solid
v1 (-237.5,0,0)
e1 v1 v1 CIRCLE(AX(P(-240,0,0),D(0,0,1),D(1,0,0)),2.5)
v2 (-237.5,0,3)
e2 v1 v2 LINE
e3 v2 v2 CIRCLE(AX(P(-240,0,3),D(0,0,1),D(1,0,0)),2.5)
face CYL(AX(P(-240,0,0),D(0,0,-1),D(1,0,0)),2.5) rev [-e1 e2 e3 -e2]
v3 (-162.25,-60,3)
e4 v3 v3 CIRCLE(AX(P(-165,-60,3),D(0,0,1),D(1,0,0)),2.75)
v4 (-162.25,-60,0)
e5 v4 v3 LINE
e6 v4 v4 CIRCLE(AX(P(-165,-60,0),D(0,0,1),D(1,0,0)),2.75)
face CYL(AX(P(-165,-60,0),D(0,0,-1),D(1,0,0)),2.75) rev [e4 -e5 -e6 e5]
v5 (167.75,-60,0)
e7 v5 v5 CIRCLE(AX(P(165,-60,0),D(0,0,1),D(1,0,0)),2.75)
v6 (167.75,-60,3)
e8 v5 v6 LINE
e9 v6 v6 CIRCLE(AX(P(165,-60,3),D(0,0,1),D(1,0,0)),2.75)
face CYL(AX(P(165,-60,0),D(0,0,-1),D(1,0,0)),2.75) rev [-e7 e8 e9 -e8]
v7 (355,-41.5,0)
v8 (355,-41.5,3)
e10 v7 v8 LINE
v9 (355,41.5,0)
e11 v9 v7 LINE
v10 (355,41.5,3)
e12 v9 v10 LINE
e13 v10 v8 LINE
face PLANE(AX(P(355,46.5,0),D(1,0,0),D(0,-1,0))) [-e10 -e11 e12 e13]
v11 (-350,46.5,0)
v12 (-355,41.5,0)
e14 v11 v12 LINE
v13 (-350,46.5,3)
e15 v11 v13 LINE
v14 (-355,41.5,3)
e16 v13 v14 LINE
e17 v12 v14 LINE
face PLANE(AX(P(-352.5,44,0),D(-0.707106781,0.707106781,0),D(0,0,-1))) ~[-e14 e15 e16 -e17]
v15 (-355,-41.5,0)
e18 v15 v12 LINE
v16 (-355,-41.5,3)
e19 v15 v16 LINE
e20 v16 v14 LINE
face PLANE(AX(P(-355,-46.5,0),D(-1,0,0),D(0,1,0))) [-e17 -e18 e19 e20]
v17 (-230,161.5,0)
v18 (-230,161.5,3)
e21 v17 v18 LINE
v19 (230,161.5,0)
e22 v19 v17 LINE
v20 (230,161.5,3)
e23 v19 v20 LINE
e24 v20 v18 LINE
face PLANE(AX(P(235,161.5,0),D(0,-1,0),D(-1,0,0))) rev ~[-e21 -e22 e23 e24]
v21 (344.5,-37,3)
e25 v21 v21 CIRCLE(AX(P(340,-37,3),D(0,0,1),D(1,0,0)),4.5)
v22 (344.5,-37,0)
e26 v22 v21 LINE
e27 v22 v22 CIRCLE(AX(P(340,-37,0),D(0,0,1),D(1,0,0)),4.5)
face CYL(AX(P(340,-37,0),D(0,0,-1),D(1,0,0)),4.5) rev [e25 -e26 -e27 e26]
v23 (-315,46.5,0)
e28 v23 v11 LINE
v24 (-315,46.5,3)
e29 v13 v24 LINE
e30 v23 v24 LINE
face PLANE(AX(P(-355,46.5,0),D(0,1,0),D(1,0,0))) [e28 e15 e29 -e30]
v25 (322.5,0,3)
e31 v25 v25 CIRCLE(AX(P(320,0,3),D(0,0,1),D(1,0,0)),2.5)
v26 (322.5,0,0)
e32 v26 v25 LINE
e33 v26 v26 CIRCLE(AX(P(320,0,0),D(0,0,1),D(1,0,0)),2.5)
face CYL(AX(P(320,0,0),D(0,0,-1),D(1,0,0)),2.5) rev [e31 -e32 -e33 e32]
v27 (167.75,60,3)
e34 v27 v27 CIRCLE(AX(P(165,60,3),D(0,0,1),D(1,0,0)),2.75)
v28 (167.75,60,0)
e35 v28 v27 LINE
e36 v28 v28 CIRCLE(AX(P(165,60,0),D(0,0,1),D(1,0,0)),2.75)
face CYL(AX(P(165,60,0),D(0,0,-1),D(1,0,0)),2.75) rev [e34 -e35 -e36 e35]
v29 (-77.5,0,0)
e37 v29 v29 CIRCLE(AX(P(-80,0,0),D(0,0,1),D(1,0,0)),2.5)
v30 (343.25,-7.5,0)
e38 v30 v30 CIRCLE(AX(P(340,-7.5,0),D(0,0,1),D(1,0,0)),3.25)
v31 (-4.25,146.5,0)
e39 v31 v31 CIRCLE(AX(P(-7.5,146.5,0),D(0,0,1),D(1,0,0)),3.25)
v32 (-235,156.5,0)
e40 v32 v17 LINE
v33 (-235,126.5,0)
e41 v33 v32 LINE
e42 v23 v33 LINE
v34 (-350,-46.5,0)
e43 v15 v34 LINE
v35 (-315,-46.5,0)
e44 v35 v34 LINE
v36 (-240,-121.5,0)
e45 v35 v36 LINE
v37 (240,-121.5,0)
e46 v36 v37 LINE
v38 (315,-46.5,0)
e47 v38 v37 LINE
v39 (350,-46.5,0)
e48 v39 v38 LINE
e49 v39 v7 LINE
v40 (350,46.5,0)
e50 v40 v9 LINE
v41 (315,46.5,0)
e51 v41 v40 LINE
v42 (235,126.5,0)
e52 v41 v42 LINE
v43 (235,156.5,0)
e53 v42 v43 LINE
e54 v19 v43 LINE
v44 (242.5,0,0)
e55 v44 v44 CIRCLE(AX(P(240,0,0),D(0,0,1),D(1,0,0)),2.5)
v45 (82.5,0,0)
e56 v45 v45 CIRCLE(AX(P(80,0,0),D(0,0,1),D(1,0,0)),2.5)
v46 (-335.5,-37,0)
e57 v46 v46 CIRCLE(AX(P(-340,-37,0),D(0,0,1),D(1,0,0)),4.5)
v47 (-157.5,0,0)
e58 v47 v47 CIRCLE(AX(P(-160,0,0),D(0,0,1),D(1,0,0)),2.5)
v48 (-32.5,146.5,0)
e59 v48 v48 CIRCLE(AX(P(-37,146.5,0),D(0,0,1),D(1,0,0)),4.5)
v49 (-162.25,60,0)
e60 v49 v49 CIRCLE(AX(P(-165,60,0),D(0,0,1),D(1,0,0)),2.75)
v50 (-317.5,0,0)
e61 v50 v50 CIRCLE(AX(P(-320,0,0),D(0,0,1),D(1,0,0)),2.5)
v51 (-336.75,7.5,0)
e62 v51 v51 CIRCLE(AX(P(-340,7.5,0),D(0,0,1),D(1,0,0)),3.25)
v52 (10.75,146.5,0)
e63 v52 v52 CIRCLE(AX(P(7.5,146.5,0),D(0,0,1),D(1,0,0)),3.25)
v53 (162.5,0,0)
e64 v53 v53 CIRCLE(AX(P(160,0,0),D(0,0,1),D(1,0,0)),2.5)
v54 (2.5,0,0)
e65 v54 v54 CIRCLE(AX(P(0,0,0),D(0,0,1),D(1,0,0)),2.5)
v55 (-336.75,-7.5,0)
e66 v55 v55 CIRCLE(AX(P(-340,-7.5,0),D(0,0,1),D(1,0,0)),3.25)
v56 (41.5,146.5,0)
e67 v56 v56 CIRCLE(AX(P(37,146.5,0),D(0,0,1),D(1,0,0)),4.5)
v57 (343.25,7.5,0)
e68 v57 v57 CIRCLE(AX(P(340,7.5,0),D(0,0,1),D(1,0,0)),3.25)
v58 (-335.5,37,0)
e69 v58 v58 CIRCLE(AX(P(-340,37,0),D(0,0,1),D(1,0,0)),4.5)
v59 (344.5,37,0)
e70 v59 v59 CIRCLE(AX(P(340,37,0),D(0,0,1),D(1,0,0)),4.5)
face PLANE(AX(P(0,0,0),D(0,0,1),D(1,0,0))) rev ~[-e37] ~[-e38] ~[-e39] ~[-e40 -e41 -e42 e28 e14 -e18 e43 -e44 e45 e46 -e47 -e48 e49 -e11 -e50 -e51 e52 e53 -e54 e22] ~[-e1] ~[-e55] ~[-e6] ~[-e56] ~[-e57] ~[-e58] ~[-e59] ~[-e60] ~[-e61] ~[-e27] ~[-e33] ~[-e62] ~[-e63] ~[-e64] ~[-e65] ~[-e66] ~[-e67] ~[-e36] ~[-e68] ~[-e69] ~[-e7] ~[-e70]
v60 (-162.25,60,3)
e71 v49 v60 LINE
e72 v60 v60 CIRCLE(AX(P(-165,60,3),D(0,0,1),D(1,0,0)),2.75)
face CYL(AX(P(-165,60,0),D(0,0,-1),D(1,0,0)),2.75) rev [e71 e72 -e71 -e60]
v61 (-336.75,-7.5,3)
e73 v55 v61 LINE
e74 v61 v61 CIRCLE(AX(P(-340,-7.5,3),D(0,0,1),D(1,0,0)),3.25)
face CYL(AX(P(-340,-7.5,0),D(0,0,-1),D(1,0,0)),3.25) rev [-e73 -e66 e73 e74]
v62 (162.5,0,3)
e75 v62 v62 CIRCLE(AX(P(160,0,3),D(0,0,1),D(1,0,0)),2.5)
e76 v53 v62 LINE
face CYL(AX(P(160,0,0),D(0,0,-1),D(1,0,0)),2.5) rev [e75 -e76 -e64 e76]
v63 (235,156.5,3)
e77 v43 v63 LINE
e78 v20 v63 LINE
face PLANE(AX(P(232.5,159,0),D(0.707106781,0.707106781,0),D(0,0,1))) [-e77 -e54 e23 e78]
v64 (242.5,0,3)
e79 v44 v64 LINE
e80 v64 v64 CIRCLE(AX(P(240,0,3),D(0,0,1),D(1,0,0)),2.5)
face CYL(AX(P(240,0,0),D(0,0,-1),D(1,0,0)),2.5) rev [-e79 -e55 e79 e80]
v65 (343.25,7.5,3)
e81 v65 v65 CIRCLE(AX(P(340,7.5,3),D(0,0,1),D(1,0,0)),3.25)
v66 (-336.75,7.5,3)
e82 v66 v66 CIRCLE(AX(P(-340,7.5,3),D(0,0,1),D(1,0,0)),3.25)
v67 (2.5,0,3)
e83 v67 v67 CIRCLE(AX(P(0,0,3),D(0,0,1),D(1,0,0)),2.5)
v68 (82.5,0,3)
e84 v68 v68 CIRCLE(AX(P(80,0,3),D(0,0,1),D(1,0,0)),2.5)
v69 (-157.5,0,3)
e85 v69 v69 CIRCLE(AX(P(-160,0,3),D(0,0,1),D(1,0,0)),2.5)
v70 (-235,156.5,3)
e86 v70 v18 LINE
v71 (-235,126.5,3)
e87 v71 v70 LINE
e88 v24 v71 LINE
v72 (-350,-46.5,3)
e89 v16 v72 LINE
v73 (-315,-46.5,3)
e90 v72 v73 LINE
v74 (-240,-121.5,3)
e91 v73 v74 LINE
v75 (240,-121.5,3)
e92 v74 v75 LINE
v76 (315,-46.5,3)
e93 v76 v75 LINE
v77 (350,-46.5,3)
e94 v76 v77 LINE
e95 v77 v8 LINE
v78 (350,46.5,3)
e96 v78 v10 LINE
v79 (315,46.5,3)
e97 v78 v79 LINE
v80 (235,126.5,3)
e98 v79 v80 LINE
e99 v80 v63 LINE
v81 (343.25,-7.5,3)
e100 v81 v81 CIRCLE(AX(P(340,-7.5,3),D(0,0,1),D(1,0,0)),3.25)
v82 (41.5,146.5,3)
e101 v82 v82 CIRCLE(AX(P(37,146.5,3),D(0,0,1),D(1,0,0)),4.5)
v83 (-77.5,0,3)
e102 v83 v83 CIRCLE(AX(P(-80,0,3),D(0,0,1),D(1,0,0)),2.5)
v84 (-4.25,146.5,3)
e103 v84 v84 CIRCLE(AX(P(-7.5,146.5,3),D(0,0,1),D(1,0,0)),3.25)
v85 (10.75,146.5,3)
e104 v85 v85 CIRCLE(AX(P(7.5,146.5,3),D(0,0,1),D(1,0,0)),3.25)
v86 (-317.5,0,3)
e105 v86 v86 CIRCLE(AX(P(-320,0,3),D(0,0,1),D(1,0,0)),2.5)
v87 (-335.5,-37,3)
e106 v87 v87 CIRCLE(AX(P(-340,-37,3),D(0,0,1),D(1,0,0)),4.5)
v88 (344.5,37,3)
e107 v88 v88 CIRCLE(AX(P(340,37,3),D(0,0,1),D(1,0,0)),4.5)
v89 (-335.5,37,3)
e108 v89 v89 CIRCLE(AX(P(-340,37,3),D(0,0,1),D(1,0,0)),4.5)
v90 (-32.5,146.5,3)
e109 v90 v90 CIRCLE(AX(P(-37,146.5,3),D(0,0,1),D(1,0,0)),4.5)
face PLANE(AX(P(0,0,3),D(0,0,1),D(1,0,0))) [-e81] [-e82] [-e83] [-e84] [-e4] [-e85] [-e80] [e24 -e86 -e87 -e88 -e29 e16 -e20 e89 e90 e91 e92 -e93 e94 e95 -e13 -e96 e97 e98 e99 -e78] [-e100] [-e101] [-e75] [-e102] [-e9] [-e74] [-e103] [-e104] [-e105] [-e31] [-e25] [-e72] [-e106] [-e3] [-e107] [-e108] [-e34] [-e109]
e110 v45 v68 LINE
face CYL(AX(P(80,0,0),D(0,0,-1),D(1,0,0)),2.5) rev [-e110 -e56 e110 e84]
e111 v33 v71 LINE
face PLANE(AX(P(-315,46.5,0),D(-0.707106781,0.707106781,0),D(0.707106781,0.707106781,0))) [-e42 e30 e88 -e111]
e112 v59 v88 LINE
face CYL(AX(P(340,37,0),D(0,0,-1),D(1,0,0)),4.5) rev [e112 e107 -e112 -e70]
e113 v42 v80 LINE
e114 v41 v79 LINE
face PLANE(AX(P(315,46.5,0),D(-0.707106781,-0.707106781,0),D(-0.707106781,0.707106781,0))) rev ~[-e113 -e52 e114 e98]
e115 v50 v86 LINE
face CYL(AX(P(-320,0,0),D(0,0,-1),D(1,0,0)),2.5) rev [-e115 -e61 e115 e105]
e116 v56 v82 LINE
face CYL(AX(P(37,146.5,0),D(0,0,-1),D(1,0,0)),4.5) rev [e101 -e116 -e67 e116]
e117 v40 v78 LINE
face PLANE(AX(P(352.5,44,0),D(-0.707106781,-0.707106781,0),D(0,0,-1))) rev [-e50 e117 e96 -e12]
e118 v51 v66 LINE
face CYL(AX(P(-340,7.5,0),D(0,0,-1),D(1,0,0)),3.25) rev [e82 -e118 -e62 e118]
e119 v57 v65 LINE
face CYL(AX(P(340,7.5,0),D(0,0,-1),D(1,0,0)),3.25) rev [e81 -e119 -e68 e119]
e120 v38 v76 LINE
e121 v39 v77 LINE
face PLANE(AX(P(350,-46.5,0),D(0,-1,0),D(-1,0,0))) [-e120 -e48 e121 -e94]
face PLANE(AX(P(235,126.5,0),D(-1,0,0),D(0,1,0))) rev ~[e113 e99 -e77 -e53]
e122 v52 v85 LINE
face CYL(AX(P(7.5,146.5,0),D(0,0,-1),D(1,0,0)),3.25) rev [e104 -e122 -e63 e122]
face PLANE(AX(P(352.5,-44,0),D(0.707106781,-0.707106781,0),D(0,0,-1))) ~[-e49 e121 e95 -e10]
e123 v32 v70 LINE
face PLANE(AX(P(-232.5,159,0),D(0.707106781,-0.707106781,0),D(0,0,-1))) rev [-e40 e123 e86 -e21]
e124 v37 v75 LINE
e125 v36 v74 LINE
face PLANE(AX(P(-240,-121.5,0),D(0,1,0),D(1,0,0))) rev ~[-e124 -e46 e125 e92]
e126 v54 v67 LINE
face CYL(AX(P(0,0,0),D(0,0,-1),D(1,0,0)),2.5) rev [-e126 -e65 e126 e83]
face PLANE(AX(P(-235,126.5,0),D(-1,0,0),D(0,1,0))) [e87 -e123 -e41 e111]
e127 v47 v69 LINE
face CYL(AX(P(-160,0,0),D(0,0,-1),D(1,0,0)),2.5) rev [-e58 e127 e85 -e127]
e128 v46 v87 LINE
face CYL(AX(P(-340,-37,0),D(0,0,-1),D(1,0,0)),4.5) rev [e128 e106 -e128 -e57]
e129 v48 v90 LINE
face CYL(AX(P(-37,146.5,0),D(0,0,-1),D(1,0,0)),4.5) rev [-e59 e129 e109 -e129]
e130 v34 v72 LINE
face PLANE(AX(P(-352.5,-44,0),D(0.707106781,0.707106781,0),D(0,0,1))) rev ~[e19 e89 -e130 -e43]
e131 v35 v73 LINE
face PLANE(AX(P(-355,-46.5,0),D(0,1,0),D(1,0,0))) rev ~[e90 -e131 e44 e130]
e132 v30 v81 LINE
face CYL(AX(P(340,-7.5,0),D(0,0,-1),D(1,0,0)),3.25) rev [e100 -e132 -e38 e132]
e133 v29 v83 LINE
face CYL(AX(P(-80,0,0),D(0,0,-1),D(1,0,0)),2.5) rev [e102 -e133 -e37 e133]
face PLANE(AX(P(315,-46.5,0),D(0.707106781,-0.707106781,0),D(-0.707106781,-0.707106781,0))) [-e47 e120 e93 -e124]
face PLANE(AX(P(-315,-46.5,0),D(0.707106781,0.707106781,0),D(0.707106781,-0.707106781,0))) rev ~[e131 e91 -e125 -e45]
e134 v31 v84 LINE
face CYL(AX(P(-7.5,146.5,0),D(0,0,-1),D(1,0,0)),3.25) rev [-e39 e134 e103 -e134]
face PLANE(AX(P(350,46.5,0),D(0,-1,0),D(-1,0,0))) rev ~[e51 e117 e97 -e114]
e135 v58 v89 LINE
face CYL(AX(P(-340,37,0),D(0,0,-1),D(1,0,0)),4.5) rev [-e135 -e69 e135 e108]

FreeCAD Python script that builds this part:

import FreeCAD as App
import Part
import Sketcher
from FreeCAD import Vector
Q = App.Units.Quantity


def edges_at(feature, points):
    """Names of the edges that pass closest to the given points."""
    edges = feature.Shape.Edges
    near = lambda p: min(range(len(edges)), key=lambda i: edges[i].distToShape(Part.Vertex(*p))[0])
    return sorted({f"Edge{near(p) + 1}" for p in points})


def add_polygon(sketch, points):
    """Adds a closed chain of lines whose ends are joined by coincident constraints."""
    first, n = sketch.GeometryCount, len(points)
    for a, b in zip(points, points[1:] + points[:1]):
        sketch.addGeometry(Part.LineSegment(App.Vector(*a, 0), App.Vector(*b, 0)), False)
    for i in range(n):
        sketch.addConstraint(Sketcher.Constraint("Coincident", first + i, 2, first + (i + 1) % n, 1))

doc = App.newDocument("Part")
body = doc.addObject("PartDesign::Body", "Body")

sketch1 = body.newObject("Sketcher::SketchObject", "Sketch")
sketch1.AttachmentSupport = (doc.getObject("XY_Plane"), [""])
sketch1.MapMode = "FlatFace"
add_polygon(sketch1, [(-355, 46.5), (-355, -46.5), (-315, -46.5), (-240, -121.5), (240, -121.5), (315, -46.5), (355, -46.5), (355, 46.5), (315, 46.5), (235, 126.5), (235, 161.5), (-235, 161.5), (-235, 126.5), (-315, 46.5)])
sketch1.addGeometry(Part.Circle(Vector(-340, 37, 0), Vector(0, 0, 1), 4.5), False)
sketch1.addGeometry(Part.Circle(Vector(-340, -37, 0), Vector(0, 0, 1), 4.5), False)
sketch1.addGeometry(Part.Circle(Vector(-340, -7.5, 0), Vector(0, 0, 1), 3.25), False)
sketch1.addGeometry(Part.Circle(Vector(-340, 7.5, 0), Vector(0, 0, 1), 3.25), False)
sketch1.addGeometry(Part.Circle(Vector(-320, 0, 0), Vector(0, 0, 1), 2.5), False)
sketch1.addGeometry(Part.Circle(Vector(240, 0, 0), Vector(0, 0, 1), 2.5), False)
sketch1.addGeometry(Part.Circle(Vector(-165, -60, 0), Vector(0, 0, 1), 2.75), False)
sketch1.addGeometry(Part.Circle(Vector(165, -60, 0), Vector(0, 0, 1), 2.75), False)
sketch1.addGeometry(Part.Circle(Vector(-240, 0, 0), Vector(0, 0, 1), 2.5), False)
sketch1.addGeometry(Part.Circle(Vector(-160, 0, 0), Vector(0, 0, 1), 2.5), False)
sketch1.addGeometry(Part.Circle(Vector(-80, 0, 0), Vector(0, 0, 1), 2.5), False)
sketch1.addGeometry(Part.Circle(Vector(-165, 60, 0), Vector(0, 0, 1), 2.75), False)
sketch1.addGeometry(Part.Circle(Vector(0, 0, 0), Vector(0, 0, 1), 2.5), False)
sketch1.addGeometry(Part.Circle(Vector(80, 0, 0), Vector(0, 0, 1), 2.5), False)
sketch1.addGeometry(Part.Circle(Vector(160, 0, 0), Vector(0, 0, 1), 2.5), False)
sketch1.addGeometry(Part.Circle(Vector(165, 60, 0), Vector(0, 0, 1), 2.75), False)
sketch1.addGeometry(Part.Circle(Vector(37, 146.5, 0), Vector(0, 0, 1), 4.5), False)
sketch1.addGeometry(Part.Circle(Vector(-37, 146.5, 0), Vector(0, 0, 1), 4.5), False)
sketch1.addGeometry(Part.Circle(Vector(-7.5, 146.5, 0), Vector(0, 0, 1), 3.25), False)
sketch1.addGeometry(Part.Circle(Vector(7.5, 146.5, 0), Vector(0, 0, 1), 3.25), False)
sketch1.addGeometry(Part.Circle(Vector(340, 37, 0), Vector(0, 0, 1), 4.5), False)
sketch1.addGeometry(Part.Circle(Vector(340, -37, 0), Vector(0, 0, 1), 4.5), False)
sketch1.addGeometry(Part.Circle(Vector(340, -7.5, 0), Vector(0, 0, 1), 3.25), False)
sketch1.addGeometry(Part.Circle(Vector(320, 0, 0), Vector(0, 0, 1), 2.5), False)
sketch1.addGeometry(Part.Circle(Vector(340, 7.5, 0), Vector(0, 0, 1), 3.25), False)
sketch1.addConstraint(Sketcher.Constraint("Vertical", 0))
sketch1.addConstraint(Sketcher.Constraint("Horizontal", 1))
sketch1.addConstraint(Sketcher.Constraint("Horizontal", 3))
sketch1.addConstraint(Sketcher.Constraint("Horizontal", 5))
sketch1.addConstraint(Sketcher.Constraint("Vertical", 6))
sketch1.addConstraint(Sketcher.Constraint("Horizontal", 7))
sketch1.addConstraint(Sketcher.Constraint("Vertical", 9))
sketch1.addConstraint(Sketcher.Constraint("Horizontal", 10))
sketch1.addConstraint(Sketcher.Constraint("Vertical", 11))
sketch1.addConstraint(Sketcher.Constraint("Horizontal", 13))
sketch1.addConstraint(Sketcher.Constraint("Coincident", 26, 3, -1, 1))
sketch1.addConstraint(Sketcher.Constraint("Equal", 14, 15))
sketch1.addConstraint(Sketcher.Constraint("Equal", 16, 17))
sketch1.addConstraint(Sketcher.Constraint("Equal", 18, 19))
sketch1.addConstraint(Sketcher.Constraint("Equal", 20, 21))
sketch1.addConstraint(Sketcher.Constraint("Equal", 19, 22))
sketch1.addConstraint(Sketcher.Constraint("Equal", 22, 23))
sketch1.addConstraint(Sketcher.Constraint("Equal", 23, 24))
sketch1.addConstraint(Sketcher.Constraint("Equal", 21, 25))
sketch1.addConstraint(Sketcher.Constraint("Equal", 24, 26))
sketch1.addConstraint(Sketcher.Constraint("Equal", 26, 27))
sketch1.addConstraint(Sketcher.Constraint("Equal", 27, 28))
sketch1.addConstraint(Sketcher.Constraint("Equal", 25, 29))
sketch1.addConstraint(Sketcher.Constraint("Equal", 15, 30))
sketch1.addConstraint(Sketcher.Constraint("Equal", 30, 31))
sketch1.addConstraint(Sketcher.Constraint("Equal", 17, 32))
sketch1.addConstraint(Sketcher.Constraint("Equal", 32, 33))
sketch1.addConstraint(Sketcher.Constraint("Equal", 31, 34))
sketch1.addConstraint(Sketcher.Constraint("Equal", 34, 35))
sketch1.addConstraint(Sketcher.Constraint("Equal", 33, 36))
sketch1.addConstraint(Sketcher.Constraint("Equal", 28, 37))
sketch1.addConstraint(Sketcher.Constraint("Equal", 36, 38))
sketch1.addConstraint(Sketcher.Constraint("Symmetric", 19, 3, 22, 3, -1, 1))
sketch1.addConstraint(Sketcher.Constraint("Symmetric", 21, 3, 25, 3, -1, 1))
sketch1.addConstraint(Sketcher.Constraint("Symmetric", 24, 3, 27, 3, -1, 1))
sketch1.addConstraint(Sketcher.Constraint("Symmetric", 23, 3, 28, 3, -1, 1))
sketch1.addConstraint(Sketcher.Constraint("Symmetric", 20, 3, 29, 3, -1, 1))
sketch1.addConstraint(Sketcher.Constraint("Symmetric", 15, 3, 34, 3, -1, 1))
sketch1.addConstraint(Sketcher.Constraint("Symmetric", 14, 3, 35, 3, -1, 1))
sketch1.addConstraint(Sketcher.Constraint("Symmetric", 17, 3, 36, 3, -1, 1))
sketch1.addConstraint(Sketcher.Constraint("Symmetric", 18, 3, 37, 3, -1, 1))
sketch1.addConstraint(Sketcher.Constraint("Symmetric", 16, 3, 38, 3, -1, 1))
sketch1.addConstraint(Sketcher.Constraint("Symmetric", 0, 2, 6, 2, -1, 1))
sketch1.addConstraint(Sketcher.Constraint("Symmetric", 4, 2, 12, 2, -1, 1))
sketch1.addConstraint(Sketcher.Constraint("Symmetric", 20, 3, 21, 3, -2))
sketch1.addConstraint(Sketcher.Constraint("Symmetric", 30, 3, 31, 3, -2))
sketch1.addConstraint(Sketcher.Constraint("Symmetric", 32, 3, 33, 3, -2))
sketch1.addConstraint(Sketcher.Constraint("Symmetric", 14, 3, 34, 3, -2))
sketch1.addConstraint(Sketcher.Constraint("Symmetric", 16, 3, 36, 3, -2))
sketch1.addConstraint(Sketcher.Constraint("Symmetric", 1, 2, 4, 2, -2))
sketch1.addConstraint(Sketcher.Constraint("Symmetric", 8, 2, 11, 2, -2))
sketch1.addConstraint(Sketcher.Constraint("PointOnObject", 18, 3, -1))
sketch1.addConstraint(Sketcher.Constraint("PointOnObject", 19, 3, -1))
sketch1.addConstraint(Sketcher.Constraint("PointOnObject", 23, 3, -1))
sketch1.addConstraint(Sketcher.Constraint("PointOnObject", 24, 3, -1))
sketch1.addConstraint(Sketcher.Constraint("Perpendicular", 2, 4))
sketch1.addConstraint(Sketcher.Constraint("Perpendicular", 4, 8))
sketch1.addConstraint(Sketcher.Constraint("Perpendicular", 8, 12))
sketch1.addConstraint(Sketcher.Constraint("Horizontal", 31, 3, 32, 3))
sketch1.addConstraint(Sketcher.Constraint("Vertical", 15, 3, 16, 3))
sketch1.addConstraint(Sketcher.Constraint("Vertical", 22, 3, 2, 2))
sketch1.addConstraint(Sketcher.Constraint("Vertical", 19, 3, 3, 2))
sketch1.addConstraint(Sketcher.Constraint("Diameter", 14, Q("9 mm")))
sketch1.addConstraint(Sketcher.Constraint("Diameter", 18, Q("5 mm")))
sketch1.addConstraint(Sketcher.Constraint("Diameter", 16, Q("6.5 mm")))
sketch1.addConstraint(Sketcher.Constraint("Diameter", 20, Q("5.5 mm")))
sketch1.addConstraint(Sketcher.Constraint("DistanceX", 1, 1, 1, 2, Q("40 mm")))
sketch1.addConstraint(Sketcher.Constraint("DistanceY", -1, 1, 14, 3, Q("37 mm")))
sketch1.addConstraint(Sketcher.Constraint("DistanceY", 20, 3, -1, 1, Q("60 mm")))
sketch1.addConstraint(Sketcher.Constraint("DistanceX", 24, 3, -1, 1, Q("80 mm")))
sketch1.addConstraint(Sketcher.Constraint("DistanceX", -1, 1, 30, 3, Q("37 mm")))
sketch1.addConstraint(Sketcher.Constraint("DistanceY", 16, 3, 17, 3, Q("15 mm")))
sketch1.addConstraint(Sketcher.Constraint("DistanceX", 16, 3, 18, 3, Q("20 mm")))
sketch1.addConstraint(Sketcher.Constraint("DistanceX", 18, 3, 22, 3, Q("80 mm")))
sketch1.addConstraint(Sketcher.Constraint("DistanceX", 20, 3, 23, 3, Q("5 mm")))
sketch1.addConstraint(Sketcher.Constraint("DistanceX", 22, 3, 23, 3, Q("80 mm")))
sketch1.addConstraint(Sketcher.Constraint("DistanceX", 23, 3, 24, 3, Q("80 mm")))
sketch1.addConstraint(Sketcher.Constraint("DistanceX", 32, 3, 33, 3, Q("15 mm")))
sketch1.addConstraint(Sketcher.Constraint("DistanceX", 0, 2, 15, 3, Q("15 mm")))
sketch1.addConstraint(Sketcher.Constraint("DistanceX", 8, 2, 7, 2, Q("80 mm")))
sketch1.addConstraint(Sketcher.Constraint("DistanceY", 0, 2, 0, 1, Q("93 mm")))
sketch1.addConstraint(Sketcher.Constraint("DistanceY", 9, 1, 9, 2, Q("35 mm")))
sketch1.addConstraint(Sketcher.Constraint("DistanceY", -1, 1, 30, 3, Q("146.5 mm")))
pad1 = body.newObject("PartDesign::Pad", "Pad")
pad1.Profile = sketch1
pad1.Length = 3
doc.recompute()

chamfer = body.newObject("PartDesign::Chamfer", "Chamfer")
chamfer.Base = (pad1, edges_at(pad1, [
    (355, 46.5, 1.5),
    (355, -46.5, 1.5),
    (-355, -46.5, 1.5),
    (-355, 46.5, 1.5),
    (-235, 161.5, 1.5),
    (235, 161.5, 1.5),
]))
chamfer.Size = 5

doc.recompute()
